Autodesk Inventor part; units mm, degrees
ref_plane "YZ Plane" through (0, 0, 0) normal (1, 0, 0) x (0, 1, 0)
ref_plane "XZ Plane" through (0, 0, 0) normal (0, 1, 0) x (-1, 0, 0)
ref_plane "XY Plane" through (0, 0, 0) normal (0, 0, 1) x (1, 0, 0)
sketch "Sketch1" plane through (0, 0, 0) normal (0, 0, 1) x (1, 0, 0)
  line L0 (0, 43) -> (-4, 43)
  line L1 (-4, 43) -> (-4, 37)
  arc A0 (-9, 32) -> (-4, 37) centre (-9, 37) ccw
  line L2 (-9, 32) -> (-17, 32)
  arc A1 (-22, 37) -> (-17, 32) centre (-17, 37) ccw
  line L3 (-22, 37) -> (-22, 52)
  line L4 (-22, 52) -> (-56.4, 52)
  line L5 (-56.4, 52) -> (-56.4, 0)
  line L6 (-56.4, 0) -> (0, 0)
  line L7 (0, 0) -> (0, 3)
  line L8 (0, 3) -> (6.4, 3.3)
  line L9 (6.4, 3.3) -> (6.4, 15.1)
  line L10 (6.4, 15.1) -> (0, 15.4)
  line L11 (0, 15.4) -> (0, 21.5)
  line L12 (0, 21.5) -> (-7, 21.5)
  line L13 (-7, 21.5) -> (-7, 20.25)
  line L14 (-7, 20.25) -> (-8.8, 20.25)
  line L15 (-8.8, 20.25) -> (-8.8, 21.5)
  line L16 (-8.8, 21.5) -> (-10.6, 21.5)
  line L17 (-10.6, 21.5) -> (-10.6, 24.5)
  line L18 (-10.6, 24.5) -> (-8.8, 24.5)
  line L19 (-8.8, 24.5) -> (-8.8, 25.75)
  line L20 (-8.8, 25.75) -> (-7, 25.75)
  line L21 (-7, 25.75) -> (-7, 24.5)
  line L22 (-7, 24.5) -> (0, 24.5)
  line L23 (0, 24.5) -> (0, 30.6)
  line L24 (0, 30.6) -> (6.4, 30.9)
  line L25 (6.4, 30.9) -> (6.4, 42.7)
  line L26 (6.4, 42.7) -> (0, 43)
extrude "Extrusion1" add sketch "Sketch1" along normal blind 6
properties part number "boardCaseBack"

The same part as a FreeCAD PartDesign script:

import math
import FreeCAD as App
import Part
import Sketcher
Q = App.Units.Quantity

doc = App.newDocument("Part")
params = doc.addObject("Spreadsheet::Sheet", "Params")
for row, (alias, value) in enumerate([
    ("sketch1_radius", "5 mm"),
    ("sketch1_width", "4 mm"),
    ("sketch1_width2", "8 mm"),
    ("sketch1_width3", "7 mm"),
    ("sketch1_height", "6 mm"),
    ("pad1_length", "6 mm"),
], start=1):
    params.set(f"A{row}", alias)
    params.set(f"B{row}", "=" + value)
    params.setAlias(f"B{row}", alias)

body = doc.addObject("PartDesign::Body", "Body")

sketch1 = body.newObject("Sketcher::SketchObject", "Sketch")
sketch1.AttachmentSupport = (doc.getObject("XY_Plane"), [""])
sketch1.MapMode = "FlatFace"
sketch1.addGeometry([
    Part.LineSegment(App.Vector(6.4, 42.7, 0), App.Vector(0, 43, 0)),
    Part.LineSegment(App.Vector(0, 43, 0), App.Vector(-4, 43, 0)),
    Part.LineSegment(App.Vector(-4, 43, 0), App.Vector(-4, 37, 0)),
    Part.ArcOfCircle(Part.Circle(App.Vector(-9, 37, 0), App.Vector(0, 0, 1), 5), math.radians(-90), math.radians(0)),
    Part.LineSegment(App.Vector(-9, 32, 0), App.Vector(-17, 32, 0)),
    Part.ArcOfCircle(Part.Circle(App.Vector(-17, 37, 0), App.Vector(0, 0, 1), 5), math.radians(180), math.radians(270)),
    Part.LineSegment(App.Vector(-22, 37, 0), App.Vector(-22, 52, 0)),
    Part.LineSegment(App.Vector(-22, 52, 0), App.Vector(-56.4, 52, 0)),
    Part.LineSegment(App.Vector(-56.4, 52, 0), App.Vector(-56.4, 0, 0)),
    Part.LineSegment(App.Vector(-56.4, 0, 0), App.Vector(0, 0, 0)),
    Part.LineSegment(App.Vector(0, 0, 0), App.Vector(0, 3, 0)),
    Part.LineSegment(App.Vector(0, 3, 0), App.Vector(6.4, 3.3, 0)),
    Part.LineSegment(App.Vector(6.4, 3.3, 0), App.Vector(6.4, 15.1, 0)),
    Part.LineSegment(App.Vector(6.4, 15.1, 0), App.Vector(0, 15.4, 0)),
    Part.LineSegment(App.Vector(0, 15.4, 0), App.Vector(0, 21.5, 0)),
    Part.LineSegment(App.Vector(0, 21.5, 0), App.Vector(-7, 21.5, 0)),
    Part.LineSegment(App.Vector(-7, 21.5, 0), App.Vector(-7, 20.25, 0)),
    Part.LineSegment(App.Vector(-7, 20.25, 0), App.Vector(-8.8, 20.25, 0)),
    Part.LineSegment(App.Vector(-8.8, 20.25, 0), App.Vector(-8.8, 21.5, 0)),
    Part.LineSegment(App.Vector(-8.8, 21.5, 0), App.Vector(-10.6, 21.5, 0)),
    Part.LineSegment(App.Vector(-10.6, 21.5, 0), App.Vector(-10.6, 24.5, 0)),
    Part.LineSegment(App.Vector(-10.6, 24.5, 0), App.Vector(-8.8, 24.5, 0)),
    Part.LineSegment(App.Vector(-8.8, 24.5, 0), App.Vector(-8.8, 25.75, 0)),
    Part.LineSegment(App.Vector(-8.8, 25.75, 0), App.Vector(-7, 25.75, 0)),
    Part.LineSegment(App.Vector(-7, 25.75, 0), App.Vector(-7, 24.5, 0)),
    Part.LineSegment(App.Vector(-7, 24.5, 0), App.Vector(0, 24.5, 0)),
    Part.LineSegment(App.Vector(0, 24.5, 0), App.Vector(0, 30.6, 0)),
    Part.LineSegment(App.Vector(0, 30.6, 0), App.Vector(6.4, 30.9, 0)),
    Part.LineSegment(App.Vector(6.4, 30.9, 0), App.Vector(6.4, 42.7, 0)),
], False)
sketch1.addConstraint([
    Sketcher.Constraint("Coincident", 0, 2, 1, 1),
    Sketcher.Constraint("Coincident", 1, 2, 2, 1),
    Sketcher.Constraint("Tangent", 2, 2, 3, 2),
    Sketcher.Constraint("Tangent", 3, 1, 4, 1),
    Sketcher.Constraint("Tangent", 4, 2, 5, 2),
    Sketcher.Constraint("Tangent", 5, 1, 6, 1),
    Sketcher.Constraint("Coincident", 6, 2, 7, 1),
    Sketcher.Constraint("Coincident", 7, 2, 8, 1),
    Sketcher.Constraint("Coincident", 8, 2, 9, 1),
    Sketcher.Constraint("Coincident", 9, 2, 10, 1),
    Sketcher.Constraint("Coincident", 10, 2, 11, 1),
    Sketcher.Constraint("Coincident", 11, 2, 12, 1),
    Sketcher.Constraint("Coincident", 12, 2, 13, 1),
    Sketcher.Constraint("Coincident", 13, 2, 14, 1),
    Sketcher.Constraint("Coincident", 14, 2, 15, 1),
    Sketcher.Constraint("Coincident", 15, 2, 16, 1),
    Sketcher.Constraint("Coincident", 16, 2, 17, 1),
    Sketcher.Constraint("Coincident", 17, 2, 18, 1),
    Sketcher.Constraint("Coincident", 18, 2, 19, 1),
    Sketcher.Constraint("Coincident", 19, 2, 20, 1),
    Sketcher.Constraint("Coincident", 20, 2, 21, 1),
    Sketcher.Constraint("Coincident", 21, 2, 22, 1),
    Sketcher.Constraint("Coincident", 22, 2, 23, 1),
    Sketcher.Constraint("Coincident", 23, 2, 24, 1),
    Sketcher.Constraint("Coincident", 24, 2, 25, 1),
    Sketcher.Constraint("Coincident", 25, 2, 26, 1),
    Sketcher.Constraint("Coincident", 26, 2, 27, 1),
    Sketcher.Constraint("Coincident", 27, 2, 28, 1),
    Sketcher.Constraint("Coincident", 28, 2, 0, 1),
    Sketcher.Constraint("Horizontal", 1),
    Sketcher.Constraint("Vertical", 2),
    Sketcher.Constraint("Horizontal", 4),
    Sketcher.Constraint("Vertical", 6),
    Sketcher.Constraint("Horizontal", 7),
    Sketcher.Constraint("Vertical", 8),
    Sketcher.Constraint("Horizontal", 9),
    Sketcher.Constraint("Vertical", 10),
    Sketcher.Constraint("Vertical", 12),
    Sketcher.Constraint("Vertical", 14),
    Sketcher.Constraint("Horizontal", 15),
    Sketcher.Constraint("Vertical", 16),
    Sketcher.Constraint("Horizontal", 17),
    Sketcher.Constraint("Vertical", 18),
    Sketcher.Constraint("Horizontal", 19),
    Sketcher.Constraint("Vertical", 20),
    Sketcher.Constraint("Horizontal", 21),
    Sketcher.Constraint("Vertical", 22),
    Sketcher.Constraint("Horizontal", 23),
    Sketcher.Constraint("Vertical", 24),
    Sketcher.Constraint("Horizontal", 25),
    Sketcher.Constraint("Vertical", 26),
    Sketcher.Constraint("Vertical", 28),
    Sketcher.Constraint("Coincident", 9, 2, -1, 1),
    Sketcher.Constraint("Equal", 3, 5),
    Sketcher.Constraint("PointOnObject", 0, 2, -2),
    Sketcher.Constraint("PointOnObject", 13, 2, -2),
    Sketcher.Constraint("PointOnObject", 25, 2, -2),
    Sketcher.Constraint("Parallel", 0, 13),
    Sketcher.Constraint("Parallel", 11, 27),
    Sketcher.Constraint("Horizontal", 15, 2, 18, 2),
    Sketcher.Constraint("Horizontal", 21, 2, 24, 2),
    Sketcher.Constraint("Vertical", 18, 2, 21, 2),
    Sketcher.Constraint("Vertical", 16, 2, 23, 2),
    Sketcher.Constraint("Vertical", 12, 2, 27, 2),
    Sketcher.Constraint("Equal", 17, 19),
    Sketcher.Constraint("Equal", 10, 20),
    Sketcher.Constraint("Equal", 18, 22),
    Sketcher.Constraint("Equal", 14, 26),
    Sketcher.Constraint("Equal", 12, 28),
    Sketcher.Constraint("Equal", 0, 11),
    Sketcher.Constraint("Radius", 3, Q("5 mm")),
    Sketcher.Constraint("DistanceX", 1, 2, 1, 1, Q("4 mm")),
    Sketcher.Constraint("DistanceX", 4, 2, 4, 1, Q("8 mm")),
    Sketcher.Constraint("DistanceX", 15, 2, 15, 1, Q("7 mm")),
    Sketcher.Constraint("DistanceY", 2, 2, 2, 1, Q("6 mm")),
    Sketcher.Constraint("DistanceY", 6, 1, 6, 2, Q("15 mm")),
    Sketcher.Constraint("DistanceY", 8, 2, 8, 1, Q("52 mm")),
    Sketcher.Constraint("DistanceY", 10, 1, 10, 2, Q("3 mm")),
    Sketcher.Constraint("DistanceX", 7, 2, 7, 1, Q("34.4 mm")),
    Sketcher.Constraint("DistanceX", 17, 2, 17, 1, Q("1.8 mm")),
    Sketcher.Constraint("DistanceY", 12, 1, 12, 2, Q("11.8 mm")),
    Sketcher.Constraint("DistanceY", 14, 1, 14, 2, Q("6.1 mm")),
    Sketcher.Constraint("DistanceY", 16, 2, 16, 1, Q("1.25 mm")),
    Sketcher.Constraint("DistanceX", -1, 1, 11, 2, Q("6.4 mm")),
])
sketch1.setExpression("Constraints[70]", "Params.sketch1_radius")
sketch1.setExpression("Constraints[71]", "Params.sketch1_width")
sketch1.setExpression("Constraints[72]", "Params.sketch1_width2")
sketch1.setExpression("Constraints[73]", "Params.sketch1_width3")
sketch1.setExpression("Constraints[74]", "Params.sketch1_height")
pad1 = body.newObject("PartDesign::Pad", "Pad")
pad1.Profile = sketch1
pad1.setExpression("Length", "Params.pad1_length")

doc.recompute()
